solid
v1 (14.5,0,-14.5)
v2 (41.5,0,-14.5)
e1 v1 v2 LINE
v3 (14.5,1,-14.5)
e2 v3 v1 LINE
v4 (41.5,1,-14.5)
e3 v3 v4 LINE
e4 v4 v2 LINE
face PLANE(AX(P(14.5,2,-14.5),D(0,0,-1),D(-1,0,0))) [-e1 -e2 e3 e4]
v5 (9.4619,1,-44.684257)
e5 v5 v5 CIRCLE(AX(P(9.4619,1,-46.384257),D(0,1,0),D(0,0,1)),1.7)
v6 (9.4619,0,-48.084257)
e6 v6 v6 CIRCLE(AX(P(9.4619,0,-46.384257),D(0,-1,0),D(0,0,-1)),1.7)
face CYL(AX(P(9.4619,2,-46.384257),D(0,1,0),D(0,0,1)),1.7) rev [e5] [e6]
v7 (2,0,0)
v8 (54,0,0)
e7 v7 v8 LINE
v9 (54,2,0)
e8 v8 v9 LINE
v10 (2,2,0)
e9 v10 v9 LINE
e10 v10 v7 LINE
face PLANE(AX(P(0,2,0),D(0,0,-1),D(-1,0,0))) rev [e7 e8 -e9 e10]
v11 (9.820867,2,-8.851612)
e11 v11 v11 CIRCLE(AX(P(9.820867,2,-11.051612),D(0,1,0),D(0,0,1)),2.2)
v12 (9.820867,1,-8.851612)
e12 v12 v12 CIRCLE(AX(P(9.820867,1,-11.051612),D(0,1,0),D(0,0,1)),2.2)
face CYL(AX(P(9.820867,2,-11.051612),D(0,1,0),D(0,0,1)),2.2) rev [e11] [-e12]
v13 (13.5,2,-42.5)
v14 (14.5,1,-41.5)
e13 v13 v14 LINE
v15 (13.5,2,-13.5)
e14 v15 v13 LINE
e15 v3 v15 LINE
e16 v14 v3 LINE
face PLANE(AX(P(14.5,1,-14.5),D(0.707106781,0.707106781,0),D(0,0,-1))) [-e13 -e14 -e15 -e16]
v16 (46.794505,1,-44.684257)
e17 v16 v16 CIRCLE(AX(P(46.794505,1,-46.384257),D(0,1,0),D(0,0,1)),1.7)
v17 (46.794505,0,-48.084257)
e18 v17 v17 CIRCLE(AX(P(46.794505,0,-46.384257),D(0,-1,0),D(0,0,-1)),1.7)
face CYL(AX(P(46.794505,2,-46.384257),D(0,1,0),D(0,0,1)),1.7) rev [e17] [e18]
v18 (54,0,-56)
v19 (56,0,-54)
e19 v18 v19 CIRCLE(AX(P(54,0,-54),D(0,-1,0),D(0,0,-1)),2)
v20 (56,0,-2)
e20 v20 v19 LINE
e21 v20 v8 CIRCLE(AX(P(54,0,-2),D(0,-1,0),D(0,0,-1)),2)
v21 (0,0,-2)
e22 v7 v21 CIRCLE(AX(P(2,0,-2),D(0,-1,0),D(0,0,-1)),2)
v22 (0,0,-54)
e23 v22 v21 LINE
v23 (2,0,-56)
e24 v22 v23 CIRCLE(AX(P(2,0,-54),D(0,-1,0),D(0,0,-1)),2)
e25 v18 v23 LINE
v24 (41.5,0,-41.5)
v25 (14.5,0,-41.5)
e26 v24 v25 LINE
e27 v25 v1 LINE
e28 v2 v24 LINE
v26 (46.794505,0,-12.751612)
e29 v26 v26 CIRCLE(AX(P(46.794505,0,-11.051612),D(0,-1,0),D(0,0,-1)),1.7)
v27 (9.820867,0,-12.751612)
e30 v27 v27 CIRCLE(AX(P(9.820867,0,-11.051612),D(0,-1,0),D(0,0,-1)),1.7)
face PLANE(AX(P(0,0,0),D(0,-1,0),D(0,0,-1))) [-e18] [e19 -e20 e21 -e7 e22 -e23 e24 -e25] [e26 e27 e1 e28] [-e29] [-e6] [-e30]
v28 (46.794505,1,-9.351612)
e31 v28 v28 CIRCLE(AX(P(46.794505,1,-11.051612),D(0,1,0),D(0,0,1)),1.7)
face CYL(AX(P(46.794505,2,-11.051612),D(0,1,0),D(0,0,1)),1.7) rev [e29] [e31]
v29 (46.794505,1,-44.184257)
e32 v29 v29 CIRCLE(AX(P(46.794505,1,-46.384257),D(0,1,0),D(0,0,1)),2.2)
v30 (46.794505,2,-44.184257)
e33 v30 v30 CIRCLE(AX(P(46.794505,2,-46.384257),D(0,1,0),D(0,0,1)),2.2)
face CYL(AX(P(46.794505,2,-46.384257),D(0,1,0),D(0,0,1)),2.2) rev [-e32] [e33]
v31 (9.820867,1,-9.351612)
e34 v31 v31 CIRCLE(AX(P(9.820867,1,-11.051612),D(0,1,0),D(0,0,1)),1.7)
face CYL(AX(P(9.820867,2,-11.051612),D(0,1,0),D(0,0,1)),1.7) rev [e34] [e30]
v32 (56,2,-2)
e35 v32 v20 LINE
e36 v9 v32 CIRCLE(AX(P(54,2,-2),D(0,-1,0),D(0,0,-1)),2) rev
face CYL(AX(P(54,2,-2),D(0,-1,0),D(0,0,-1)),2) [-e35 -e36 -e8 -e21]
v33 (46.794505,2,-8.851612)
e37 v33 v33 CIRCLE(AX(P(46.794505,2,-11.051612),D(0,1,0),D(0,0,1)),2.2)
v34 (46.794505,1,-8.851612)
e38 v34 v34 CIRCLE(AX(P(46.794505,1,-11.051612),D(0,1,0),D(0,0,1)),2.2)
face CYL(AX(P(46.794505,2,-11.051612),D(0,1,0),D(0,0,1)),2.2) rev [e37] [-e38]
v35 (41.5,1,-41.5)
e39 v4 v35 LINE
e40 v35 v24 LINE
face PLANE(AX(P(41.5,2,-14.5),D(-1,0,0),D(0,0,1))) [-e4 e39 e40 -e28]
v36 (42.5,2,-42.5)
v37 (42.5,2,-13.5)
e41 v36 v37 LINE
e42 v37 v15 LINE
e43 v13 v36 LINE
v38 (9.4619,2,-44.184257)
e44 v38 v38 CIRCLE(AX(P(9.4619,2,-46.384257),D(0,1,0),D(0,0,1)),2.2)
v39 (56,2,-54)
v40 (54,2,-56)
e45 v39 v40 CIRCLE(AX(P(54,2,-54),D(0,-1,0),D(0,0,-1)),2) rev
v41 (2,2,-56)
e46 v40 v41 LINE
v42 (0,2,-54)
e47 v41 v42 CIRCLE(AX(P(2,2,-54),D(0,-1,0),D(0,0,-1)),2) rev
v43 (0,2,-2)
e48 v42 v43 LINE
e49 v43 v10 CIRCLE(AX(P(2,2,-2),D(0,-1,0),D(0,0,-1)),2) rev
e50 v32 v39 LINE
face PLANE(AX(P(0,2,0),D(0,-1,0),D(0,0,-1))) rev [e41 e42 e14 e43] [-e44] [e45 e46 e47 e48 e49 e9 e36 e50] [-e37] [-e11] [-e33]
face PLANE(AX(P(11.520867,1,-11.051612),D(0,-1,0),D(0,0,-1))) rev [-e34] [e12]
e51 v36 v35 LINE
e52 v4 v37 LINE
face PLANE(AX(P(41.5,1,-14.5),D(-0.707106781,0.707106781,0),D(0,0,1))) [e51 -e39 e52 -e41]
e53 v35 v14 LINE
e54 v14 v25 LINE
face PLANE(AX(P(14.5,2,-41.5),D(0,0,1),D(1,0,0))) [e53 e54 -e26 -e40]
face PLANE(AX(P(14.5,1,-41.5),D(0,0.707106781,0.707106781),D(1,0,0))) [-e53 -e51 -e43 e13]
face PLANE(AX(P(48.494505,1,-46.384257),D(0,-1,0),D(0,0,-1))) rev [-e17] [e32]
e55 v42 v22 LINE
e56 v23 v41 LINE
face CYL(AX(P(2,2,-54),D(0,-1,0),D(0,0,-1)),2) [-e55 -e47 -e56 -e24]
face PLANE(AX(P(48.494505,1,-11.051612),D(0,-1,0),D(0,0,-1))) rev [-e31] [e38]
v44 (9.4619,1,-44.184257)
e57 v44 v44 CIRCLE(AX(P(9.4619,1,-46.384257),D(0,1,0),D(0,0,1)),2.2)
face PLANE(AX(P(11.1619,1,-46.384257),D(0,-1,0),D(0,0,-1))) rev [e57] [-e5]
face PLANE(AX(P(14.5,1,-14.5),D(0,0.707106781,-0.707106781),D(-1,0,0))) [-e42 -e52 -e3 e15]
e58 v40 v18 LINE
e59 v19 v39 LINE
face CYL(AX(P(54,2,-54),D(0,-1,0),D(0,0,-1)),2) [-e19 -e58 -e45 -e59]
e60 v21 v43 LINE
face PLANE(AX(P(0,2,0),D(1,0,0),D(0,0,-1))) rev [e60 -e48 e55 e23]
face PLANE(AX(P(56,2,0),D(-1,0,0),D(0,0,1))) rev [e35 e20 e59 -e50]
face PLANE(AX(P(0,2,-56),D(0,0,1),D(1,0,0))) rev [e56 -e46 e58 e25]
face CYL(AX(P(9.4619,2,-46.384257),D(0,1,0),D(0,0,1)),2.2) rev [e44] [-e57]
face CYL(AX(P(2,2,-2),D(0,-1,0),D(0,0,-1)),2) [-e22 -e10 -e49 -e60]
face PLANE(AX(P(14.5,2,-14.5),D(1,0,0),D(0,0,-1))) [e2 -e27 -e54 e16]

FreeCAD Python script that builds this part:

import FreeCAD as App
import Part
import Sketcher
Q = App.Units.Quantity


def edges_at(feature, points):
    """Names of the edges that pass closest to the given points."""
    edges = feature.Shape.Edges
    near = lambda p: min(range(len(edges)), key=lambda i: edges[i].distToShape(Part.Vertex(*p))[0])
    return sorted({f"Edge{near(p) + 1}" for p in points})


def add_polygon(sketch, points):
    """Adds a closed chain of lines whose ends are joined by coincident constraints."""
    first, n = sketch.GeometryCount, len(points)
    for a, b in zip(points, points[1:] + points[:1]):
        sketch.addGeometry(Part.LineSegment(App.Vector(*a, 0), App.Vector(*b, 0)), False)
    for i in range(n):
        sketch.addConstraint(Sketcher.Constraint("Coincident", first + i, 2, first + (i + 1) % n, 1))

doc = App.newDocument("Part")
body = doc.addObject("PartDesign::Body", "Body")

# Sketch on XZ plane
sketch1 = body.newObject("Sketcher::SketchObject", "Sketch")
sketch1.AttachmentSupport = (doc.getObject("XZ_Plane"), [""])
sketch1.MapMode = "FlatFace"
add_polygon(sketch1, [(0, -56), (0, 0), (56, 0), (56, -56)])  # lines 0-3
add_polygon(sketch1, [(42, -14), (14, -14), (14, -42), (42, -42)])  # lines 4-7
sketch1.addConstraint([
    Sketcher.Constraint("Vertical", 0),
    Sketcher.Constraint("Horizontal", 1),
    Sketcher.Constraint("Vertical", 2),
    Sketcher.Constraint("Horizontal", 3),
    Sketcher.Constraint("Horizontal", 4),
    Sketcher.Constraint("Vertical", 5),
    Sketcher.Constraint("Horizontal", 6),
    Sketcher.Constraint("Vertical", 7),
    Sketcher.Constraint("Coincident", 0, 2, -1, 1),
    Sketcher.Constraint("Equal", 3, 0),
    Sketcher.Constraint("Equal", 6, 5),
    Sketcher.Constraint("DistanceX", 1, 1, 1, 2, Q("56 mm")),
    Sketcher.Constraint("DistanceX", 4, 2, 4, 1, Q("27 mm")),
    Sketcher.Constraint("DistanceX", -1, 1, 4, 2, Q("14.5 mm")),
    Sketcher.Constraint("DistanceY", 4, 2, -1, 1, Q("14.5 mm")),
])
pad1 = body.newObject("PartDesign::Pad", "Pad")
pad1.Profile = sketch1
pad1.Length = 2
pad1.Reversed = True
doc.recompute()

chamfer = body.newObject("PartDesign::Chamfer", "Chamfer")
chamfer.Base = (pad1, edges_at(pad1, [
    (14.5, 2, -28),
    (28, 2, -14.5),
    (41.5, 2, -28),
    (28, 2, -41.5),
]))
chamfer.Size = 1

# Sketch on XZ plane
sketch2 = body.newObject("Sketcher::SketchObject", "Sketch001")
sketch2.AttachmentSupport = (doc.getObject("XZ_Plane"), [""])
sketch2.MapMode = "FlatFace"
sketch2.AttachmentOffset = App.Placement(App.Vector(0, 0, -2), App.Rotation())
sketch2.addGeometry([
    Part.Circle(App.Vector(9.5, -46.4, 0), App.Vector(0, 0, 1), 1.7),
    Part.Circle(App.Vector(46.8, -46.4, 0), App.Vector(0, 0, 1), 1.7),
    Part.Circle(App.Vector(46.8, -11.1, 0), App.Vector(0, 0, 1), 1.7),
    Part.Circle(App.Vector(9.8, -11.1, 0), App.Vector(0, 0, 1), 1.7),
], False)
sketch2.addConstraint([
    Sketcher.Constraint("Equal", 0, 1),
    Sketcher.Constraint("Equal", 1, 2),
    Sketcher.Constraint("Equal", 2, 3),
    Sketcher.Constraint("Horizontal", 0, 3, 1, 3),
    Sketcher.Constraint("Horizontal", 2, 3, 3, 3),
    Sketcher.Constraint("Vertical", 1, 3, 2, 3),
    Sketcher.Constraint("Diameter", 0, Q("3.4 mm")),
    Sketcher.Constraint("DistanceX", -1, 1, 0, 3, Q("9.4619 mm")),
    Sketcher.Constraint("DistanceX", 3, 3, 2, 3, Q("36.973638 mm")),
    Sketcher.Constraint("DistanceY", 0, 3, -1, 1, Q("46.384257 mm")),
    Sketcher.Constraint("DistanceX", -1, 1, 1, 3, Q("46.794505 mm")),
    Sketcher.Constraint("DistanceY", 2, 3, -1, 1, Q("11.051612 mm")),
])
doc.recompute()
hole = body.newObject("PartDesign::Hole", "Hole")
hole.Profile = sketch2
hole.ThreadType = "None"
hole.Diameter = 3.4
hole.DepthType = "Dimension"
hole.Depth = 5
hole.DrillPoint = "Angled"
hole.DrillPointAngle = 118
hole.HoleCutType = "Counterbore"
hole.HoleCutDiameter = 4.4
hole.HoleCutDepth = 1
hole.Reversed = True
doc.recompute()

fillet = body.newObject("PartDesign::Fillet", "Fillet")
fillet.Base = (hole, edges_at(hole, [
    (0, 1, -56),
    (56, 1, -56),
    (56, 1, 0),
    (0, 1, 0),
]))
fillet.Radius = 2

doc.recompute()
